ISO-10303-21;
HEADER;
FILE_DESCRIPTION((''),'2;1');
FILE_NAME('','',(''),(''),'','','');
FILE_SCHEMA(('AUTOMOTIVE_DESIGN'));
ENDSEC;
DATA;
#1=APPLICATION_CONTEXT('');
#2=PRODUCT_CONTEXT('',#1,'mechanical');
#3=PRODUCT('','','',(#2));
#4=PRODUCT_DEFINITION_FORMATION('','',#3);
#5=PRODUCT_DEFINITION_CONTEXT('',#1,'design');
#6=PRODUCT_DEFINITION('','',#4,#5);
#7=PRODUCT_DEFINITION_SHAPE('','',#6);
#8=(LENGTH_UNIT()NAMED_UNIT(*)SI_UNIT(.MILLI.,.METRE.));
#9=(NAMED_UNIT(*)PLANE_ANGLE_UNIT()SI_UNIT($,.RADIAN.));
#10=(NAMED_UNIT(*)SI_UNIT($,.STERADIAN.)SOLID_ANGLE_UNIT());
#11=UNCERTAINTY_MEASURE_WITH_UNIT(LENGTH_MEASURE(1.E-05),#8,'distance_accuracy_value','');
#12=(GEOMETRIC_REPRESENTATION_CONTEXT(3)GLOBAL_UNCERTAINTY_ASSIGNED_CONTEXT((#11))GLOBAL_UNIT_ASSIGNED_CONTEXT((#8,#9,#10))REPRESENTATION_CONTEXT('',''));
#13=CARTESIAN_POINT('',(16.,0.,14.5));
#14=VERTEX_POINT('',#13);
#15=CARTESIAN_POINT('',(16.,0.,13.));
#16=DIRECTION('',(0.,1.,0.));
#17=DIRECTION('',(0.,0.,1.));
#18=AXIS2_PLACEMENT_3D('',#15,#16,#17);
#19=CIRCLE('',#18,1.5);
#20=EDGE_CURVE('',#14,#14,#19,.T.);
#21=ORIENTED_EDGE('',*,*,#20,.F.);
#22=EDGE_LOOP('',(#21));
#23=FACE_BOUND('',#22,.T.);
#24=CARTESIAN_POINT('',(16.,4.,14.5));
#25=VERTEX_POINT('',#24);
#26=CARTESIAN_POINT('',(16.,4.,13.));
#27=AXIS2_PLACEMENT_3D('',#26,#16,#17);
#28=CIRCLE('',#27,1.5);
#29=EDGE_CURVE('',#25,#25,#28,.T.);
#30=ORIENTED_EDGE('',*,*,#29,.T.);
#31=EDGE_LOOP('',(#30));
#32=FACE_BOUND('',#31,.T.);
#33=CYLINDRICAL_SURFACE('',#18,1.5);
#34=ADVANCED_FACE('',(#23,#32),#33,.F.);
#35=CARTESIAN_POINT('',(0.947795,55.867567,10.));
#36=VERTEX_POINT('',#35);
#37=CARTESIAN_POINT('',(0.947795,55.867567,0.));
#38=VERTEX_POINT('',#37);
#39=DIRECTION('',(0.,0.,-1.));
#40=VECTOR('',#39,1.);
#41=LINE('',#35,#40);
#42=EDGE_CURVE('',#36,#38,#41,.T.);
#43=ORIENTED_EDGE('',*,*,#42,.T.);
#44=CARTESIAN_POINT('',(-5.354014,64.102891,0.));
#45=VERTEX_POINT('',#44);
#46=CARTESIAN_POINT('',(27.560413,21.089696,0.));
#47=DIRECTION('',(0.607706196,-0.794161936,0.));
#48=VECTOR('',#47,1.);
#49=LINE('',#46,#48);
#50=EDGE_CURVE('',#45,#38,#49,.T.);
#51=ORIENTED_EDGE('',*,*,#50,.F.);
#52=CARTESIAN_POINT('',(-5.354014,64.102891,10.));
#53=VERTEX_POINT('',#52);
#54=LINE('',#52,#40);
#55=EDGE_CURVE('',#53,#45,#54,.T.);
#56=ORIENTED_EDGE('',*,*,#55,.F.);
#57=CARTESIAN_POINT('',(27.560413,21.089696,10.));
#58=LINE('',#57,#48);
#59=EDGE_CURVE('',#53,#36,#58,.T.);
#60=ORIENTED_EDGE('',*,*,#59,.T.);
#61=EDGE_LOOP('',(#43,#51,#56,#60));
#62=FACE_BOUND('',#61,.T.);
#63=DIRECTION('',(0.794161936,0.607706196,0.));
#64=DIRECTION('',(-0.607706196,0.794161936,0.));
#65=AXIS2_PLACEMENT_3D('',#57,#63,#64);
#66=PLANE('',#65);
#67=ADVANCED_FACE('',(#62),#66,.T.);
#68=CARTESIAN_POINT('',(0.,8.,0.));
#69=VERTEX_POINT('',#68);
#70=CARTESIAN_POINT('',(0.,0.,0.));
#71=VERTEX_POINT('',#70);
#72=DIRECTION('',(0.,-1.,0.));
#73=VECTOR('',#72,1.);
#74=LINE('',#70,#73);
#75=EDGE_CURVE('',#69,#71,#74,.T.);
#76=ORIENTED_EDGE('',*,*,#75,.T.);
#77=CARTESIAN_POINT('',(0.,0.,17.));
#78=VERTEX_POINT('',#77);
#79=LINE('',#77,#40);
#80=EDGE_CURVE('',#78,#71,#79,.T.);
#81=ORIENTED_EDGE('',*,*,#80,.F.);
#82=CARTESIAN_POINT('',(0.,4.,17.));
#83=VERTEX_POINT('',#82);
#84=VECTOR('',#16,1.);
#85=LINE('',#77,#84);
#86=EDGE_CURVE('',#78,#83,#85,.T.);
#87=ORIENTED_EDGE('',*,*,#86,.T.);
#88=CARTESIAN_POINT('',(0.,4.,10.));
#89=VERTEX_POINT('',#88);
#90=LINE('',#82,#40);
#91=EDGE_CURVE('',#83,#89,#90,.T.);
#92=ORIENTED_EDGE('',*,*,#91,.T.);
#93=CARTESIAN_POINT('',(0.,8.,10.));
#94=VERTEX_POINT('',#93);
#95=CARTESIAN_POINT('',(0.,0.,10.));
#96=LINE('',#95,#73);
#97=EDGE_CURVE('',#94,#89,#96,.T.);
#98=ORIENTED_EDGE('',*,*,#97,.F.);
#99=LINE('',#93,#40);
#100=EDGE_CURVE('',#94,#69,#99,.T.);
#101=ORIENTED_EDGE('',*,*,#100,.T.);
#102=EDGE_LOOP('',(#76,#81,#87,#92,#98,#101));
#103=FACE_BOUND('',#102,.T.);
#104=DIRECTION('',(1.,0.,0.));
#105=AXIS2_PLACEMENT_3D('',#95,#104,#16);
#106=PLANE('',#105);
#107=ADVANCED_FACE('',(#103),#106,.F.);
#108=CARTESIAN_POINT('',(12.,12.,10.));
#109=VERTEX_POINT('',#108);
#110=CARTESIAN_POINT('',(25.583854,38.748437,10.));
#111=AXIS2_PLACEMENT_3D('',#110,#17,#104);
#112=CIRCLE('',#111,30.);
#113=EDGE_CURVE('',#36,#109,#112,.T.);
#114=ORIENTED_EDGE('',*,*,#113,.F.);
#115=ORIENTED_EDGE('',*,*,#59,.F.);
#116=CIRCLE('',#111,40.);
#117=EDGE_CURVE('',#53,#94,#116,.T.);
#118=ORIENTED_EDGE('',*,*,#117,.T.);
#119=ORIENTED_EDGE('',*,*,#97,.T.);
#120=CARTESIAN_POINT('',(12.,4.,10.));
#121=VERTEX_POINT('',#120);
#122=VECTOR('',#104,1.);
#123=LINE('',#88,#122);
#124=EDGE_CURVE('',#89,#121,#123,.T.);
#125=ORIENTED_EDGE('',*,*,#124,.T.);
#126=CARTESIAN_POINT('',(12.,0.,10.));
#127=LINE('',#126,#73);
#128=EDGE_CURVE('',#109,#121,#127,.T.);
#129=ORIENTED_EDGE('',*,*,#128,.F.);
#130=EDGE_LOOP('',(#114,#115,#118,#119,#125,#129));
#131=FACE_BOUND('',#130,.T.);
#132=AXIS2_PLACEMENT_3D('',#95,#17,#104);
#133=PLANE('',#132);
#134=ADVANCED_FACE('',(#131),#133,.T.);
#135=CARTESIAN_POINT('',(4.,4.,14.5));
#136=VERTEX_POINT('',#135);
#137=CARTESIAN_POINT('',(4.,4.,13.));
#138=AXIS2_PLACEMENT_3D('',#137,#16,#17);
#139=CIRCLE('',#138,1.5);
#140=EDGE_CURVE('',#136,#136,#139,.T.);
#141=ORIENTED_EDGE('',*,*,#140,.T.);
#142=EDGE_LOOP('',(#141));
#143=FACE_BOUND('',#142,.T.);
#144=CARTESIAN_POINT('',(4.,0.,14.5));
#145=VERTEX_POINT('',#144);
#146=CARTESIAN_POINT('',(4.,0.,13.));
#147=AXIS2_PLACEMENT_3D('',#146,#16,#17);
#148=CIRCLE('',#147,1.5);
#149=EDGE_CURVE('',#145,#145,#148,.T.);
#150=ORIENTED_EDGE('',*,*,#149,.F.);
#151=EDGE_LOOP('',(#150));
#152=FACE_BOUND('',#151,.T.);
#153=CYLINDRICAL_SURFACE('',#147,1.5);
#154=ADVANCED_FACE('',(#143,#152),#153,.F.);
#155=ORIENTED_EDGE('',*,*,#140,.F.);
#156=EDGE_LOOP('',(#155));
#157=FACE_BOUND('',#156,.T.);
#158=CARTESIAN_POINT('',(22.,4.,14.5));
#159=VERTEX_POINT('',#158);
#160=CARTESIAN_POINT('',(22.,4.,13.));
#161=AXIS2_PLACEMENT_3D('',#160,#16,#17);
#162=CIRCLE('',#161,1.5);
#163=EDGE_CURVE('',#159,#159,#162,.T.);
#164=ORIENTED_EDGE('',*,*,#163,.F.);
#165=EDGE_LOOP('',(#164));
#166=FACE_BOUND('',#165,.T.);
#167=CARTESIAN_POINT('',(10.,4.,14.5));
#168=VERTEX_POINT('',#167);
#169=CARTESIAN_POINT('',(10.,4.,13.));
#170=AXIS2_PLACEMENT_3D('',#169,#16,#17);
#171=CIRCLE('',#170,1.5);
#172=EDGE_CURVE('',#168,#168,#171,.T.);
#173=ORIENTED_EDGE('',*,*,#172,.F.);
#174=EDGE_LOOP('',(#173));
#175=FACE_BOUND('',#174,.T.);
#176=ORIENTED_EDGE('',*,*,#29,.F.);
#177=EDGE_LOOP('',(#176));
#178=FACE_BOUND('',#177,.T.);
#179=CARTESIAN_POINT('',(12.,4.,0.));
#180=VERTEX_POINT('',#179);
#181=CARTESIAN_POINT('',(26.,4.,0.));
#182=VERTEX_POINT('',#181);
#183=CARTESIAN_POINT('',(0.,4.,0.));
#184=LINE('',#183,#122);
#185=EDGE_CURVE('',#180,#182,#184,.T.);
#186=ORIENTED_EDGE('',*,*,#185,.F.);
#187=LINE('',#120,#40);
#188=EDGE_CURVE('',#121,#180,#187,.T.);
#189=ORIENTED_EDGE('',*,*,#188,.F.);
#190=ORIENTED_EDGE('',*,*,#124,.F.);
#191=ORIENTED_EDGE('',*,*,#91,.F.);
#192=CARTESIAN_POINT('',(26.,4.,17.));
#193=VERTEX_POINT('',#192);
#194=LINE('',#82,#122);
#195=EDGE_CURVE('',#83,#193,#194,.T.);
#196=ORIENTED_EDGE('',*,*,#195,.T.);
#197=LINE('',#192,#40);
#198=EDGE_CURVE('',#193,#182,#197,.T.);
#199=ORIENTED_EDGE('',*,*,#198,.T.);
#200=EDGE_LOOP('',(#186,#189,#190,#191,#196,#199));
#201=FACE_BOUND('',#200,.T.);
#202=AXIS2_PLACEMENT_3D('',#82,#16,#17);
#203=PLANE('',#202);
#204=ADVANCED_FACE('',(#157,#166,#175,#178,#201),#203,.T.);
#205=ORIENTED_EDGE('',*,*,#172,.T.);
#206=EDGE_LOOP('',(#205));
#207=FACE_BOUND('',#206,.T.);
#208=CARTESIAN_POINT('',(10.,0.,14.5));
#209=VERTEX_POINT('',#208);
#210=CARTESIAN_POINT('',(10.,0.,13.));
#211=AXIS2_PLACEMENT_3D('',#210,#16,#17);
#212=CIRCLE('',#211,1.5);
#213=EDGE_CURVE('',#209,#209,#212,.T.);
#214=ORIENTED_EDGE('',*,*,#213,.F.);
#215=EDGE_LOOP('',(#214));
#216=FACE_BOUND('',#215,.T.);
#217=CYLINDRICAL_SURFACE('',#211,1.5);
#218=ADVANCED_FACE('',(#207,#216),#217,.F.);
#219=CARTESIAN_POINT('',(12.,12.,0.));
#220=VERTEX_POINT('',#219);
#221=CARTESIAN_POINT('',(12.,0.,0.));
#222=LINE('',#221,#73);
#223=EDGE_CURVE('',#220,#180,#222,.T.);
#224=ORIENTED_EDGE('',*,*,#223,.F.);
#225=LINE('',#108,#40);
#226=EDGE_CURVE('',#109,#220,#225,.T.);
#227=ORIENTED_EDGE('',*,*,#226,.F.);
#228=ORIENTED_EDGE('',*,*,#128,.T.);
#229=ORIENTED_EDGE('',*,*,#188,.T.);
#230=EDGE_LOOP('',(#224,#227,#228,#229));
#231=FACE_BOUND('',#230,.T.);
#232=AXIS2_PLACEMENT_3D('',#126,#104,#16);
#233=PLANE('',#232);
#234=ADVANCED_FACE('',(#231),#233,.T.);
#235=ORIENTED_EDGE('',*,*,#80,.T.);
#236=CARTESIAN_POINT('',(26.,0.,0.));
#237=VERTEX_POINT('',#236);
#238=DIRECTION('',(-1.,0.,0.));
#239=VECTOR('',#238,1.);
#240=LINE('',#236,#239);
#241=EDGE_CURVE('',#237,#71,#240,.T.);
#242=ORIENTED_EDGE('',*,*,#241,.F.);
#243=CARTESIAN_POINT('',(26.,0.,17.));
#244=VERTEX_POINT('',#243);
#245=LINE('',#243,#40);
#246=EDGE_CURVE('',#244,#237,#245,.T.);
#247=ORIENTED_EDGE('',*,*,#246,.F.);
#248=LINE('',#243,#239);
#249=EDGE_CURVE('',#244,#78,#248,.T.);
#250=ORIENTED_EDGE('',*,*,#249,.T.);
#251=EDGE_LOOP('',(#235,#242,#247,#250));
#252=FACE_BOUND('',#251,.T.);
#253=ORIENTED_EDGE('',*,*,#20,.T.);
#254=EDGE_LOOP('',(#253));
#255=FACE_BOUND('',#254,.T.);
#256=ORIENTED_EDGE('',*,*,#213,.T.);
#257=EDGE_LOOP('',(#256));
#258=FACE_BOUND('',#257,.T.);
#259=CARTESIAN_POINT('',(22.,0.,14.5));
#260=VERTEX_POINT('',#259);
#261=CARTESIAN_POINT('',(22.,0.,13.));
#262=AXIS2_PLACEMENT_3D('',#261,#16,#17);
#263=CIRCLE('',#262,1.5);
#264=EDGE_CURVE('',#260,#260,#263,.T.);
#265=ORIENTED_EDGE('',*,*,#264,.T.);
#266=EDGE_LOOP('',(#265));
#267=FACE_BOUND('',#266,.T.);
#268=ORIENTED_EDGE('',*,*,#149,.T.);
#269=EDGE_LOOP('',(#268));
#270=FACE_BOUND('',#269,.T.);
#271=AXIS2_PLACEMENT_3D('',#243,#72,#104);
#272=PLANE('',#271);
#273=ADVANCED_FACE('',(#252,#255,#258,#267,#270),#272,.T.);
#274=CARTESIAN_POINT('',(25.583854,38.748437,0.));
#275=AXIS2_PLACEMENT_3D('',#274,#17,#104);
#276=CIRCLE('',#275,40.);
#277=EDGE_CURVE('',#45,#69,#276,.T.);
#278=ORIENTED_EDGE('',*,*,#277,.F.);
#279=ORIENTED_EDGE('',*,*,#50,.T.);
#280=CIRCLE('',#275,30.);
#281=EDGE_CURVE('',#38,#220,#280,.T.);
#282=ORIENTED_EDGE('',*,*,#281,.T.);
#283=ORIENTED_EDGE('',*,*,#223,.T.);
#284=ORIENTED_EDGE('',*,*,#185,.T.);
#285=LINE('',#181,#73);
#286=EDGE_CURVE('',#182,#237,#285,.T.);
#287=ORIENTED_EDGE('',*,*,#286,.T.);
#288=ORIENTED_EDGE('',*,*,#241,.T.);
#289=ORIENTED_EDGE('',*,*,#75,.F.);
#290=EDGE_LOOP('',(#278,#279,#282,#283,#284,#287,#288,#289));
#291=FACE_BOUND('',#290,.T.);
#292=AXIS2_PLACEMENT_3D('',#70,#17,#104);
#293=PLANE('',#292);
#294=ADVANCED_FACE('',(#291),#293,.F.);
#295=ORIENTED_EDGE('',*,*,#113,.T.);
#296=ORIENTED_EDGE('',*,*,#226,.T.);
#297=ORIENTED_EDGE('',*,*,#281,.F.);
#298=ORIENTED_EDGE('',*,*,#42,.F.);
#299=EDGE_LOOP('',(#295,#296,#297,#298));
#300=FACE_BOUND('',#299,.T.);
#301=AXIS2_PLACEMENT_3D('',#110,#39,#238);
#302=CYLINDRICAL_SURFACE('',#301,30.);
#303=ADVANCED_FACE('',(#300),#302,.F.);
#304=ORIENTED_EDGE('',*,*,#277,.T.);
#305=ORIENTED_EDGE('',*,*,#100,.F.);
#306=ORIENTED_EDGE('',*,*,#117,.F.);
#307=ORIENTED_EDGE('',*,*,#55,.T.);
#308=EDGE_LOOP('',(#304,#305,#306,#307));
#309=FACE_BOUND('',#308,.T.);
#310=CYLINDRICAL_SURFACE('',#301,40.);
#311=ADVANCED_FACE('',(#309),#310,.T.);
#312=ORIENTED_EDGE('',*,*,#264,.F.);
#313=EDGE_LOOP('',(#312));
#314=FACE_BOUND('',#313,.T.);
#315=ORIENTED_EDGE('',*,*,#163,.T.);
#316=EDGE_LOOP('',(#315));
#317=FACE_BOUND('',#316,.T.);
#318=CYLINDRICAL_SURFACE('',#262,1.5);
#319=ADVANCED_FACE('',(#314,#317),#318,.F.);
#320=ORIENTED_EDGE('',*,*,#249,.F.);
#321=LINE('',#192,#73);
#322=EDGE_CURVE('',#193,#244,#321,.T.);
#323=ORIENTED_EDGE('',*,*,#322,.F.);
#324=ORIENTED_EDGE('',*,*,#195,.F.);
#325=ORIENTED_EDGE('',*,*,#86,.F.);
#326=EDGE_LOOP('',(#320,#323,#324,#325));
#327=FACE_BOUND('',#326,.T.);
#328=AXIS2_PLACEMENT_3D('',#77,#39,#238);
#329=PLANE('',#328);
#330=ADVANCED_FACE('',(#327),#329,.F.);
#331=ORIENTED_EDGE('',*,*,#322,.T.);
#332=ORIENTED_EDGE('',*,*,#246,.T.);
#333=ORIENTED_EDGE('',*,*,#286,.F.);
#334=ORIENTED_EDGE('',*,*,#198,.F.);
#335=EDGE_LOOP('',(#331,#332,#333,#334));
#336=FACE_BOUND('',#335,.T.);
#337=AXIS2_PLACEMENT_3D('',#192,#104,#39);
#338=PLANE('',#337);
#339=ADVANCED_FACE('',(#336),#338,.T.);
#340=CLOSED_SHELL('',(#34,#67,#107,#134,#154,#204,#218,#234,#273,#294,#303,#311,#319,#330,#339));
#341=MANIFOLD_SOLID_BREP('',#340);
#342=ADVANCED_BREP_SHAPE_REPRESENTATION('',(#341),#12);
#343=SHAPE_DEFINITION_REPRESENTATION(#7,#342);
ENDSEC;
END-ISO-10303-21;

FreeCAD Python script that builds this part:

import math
import FreeCAD as App
import Part
import Sketcher
Q = App.Units.Quantity


def add_polygon(sketch, points):
    """Adds a closed chain of lines whose ends are joined by coincident constraints."""
    first, n = sketch.GeometryCount, len(points)
    for a, b in zip(points, points[1:] + points[:1]):
        sketch.addGeometry(Part.LineSegment(App.Vector(*a, 0), App.Vector(*b, 0)), False)
    for i in range(n):
        sketch.addConstraint(Sketcher.Constraint("Coincident", first + i, 2, first + (i + 1) % n, 1))

doc = App.newDocument("Part")
body = doc.addObject("PartDesign::Body", "Body")

# Sketch on XY plane
sketch1 = body.newObject("Sketcher::SketchObject", "Sketch")
sketch1.AttachmentSupport = (doc.getObject("XY_Plane"), [""])
sketch1.MapMode = "FlatFace"
sketch1.addGeometry(Part.LineSegment(App.Vector(0.947795, 55.867567, 0), App.Vector(-5.354014, 64.102891, 0)), False)
sketch1.addGeometry(Part.ArcOfCircle(Part.Circle(App.Vector(25.583854, 38.748437, 0), App.Vector(0, 0, 1), 40), math.radians(140.664417), math.radians(230.238273)), False)
sketch1.addGeometry(Part.LineSegment(App.Vector(0, 8, 0), App.Vector(0, 4, 0)), False)
sketch1.addGeometry(Part.LineSegment(App.Vector(0, 4, 0), App.Vector(12, 4, 0)), False)
sketch1.addGeometry(Part.LineSegment(App.Vector(12, 4, 0), App.Vector(12, 12, 0)), False)
sketch1.addGeometry(Part.ArcOfCircle(Part.Circle(App.Vector(25.583854, 38.748437, 0), App.Vector(0, 0, 1), 30), math.radians(145.205296), math.radians(243.076841)), False)
sketch1.addConstraint(Sketcher.Constraint("Coincident", 0, 2, 1, 1))
sketch1.addConstraint(Sketcher.Constraint("Coincident", 1, 2, 2, 1))
sketch1.addConstraint(Sketcher.Constraint("Coincident", 2, 2, 3, 1))
sketch1.addConstraint(Sketcher.Constraint("Coincident", 3, 2, 4, 1))
sketch1.addConstraint(Sketcher.Constraint("Coincident", 4, 2, 5, 2))
sketch1.addConstraint(Sketcher.Constraint("Coincident", 5, 1, 0, 1))
sketch1.addConstraint(Sketcher.Constraint("Vertical", 2))
sketch1.addConstraint(Sketcher.Constraint("Horizontal", 3))
sketch1.addConstraint(Sketcher.Constraint("Vertical", 4))
sketch1.addConstraint(Sketcher.Constraint("Coincident", 5, 3, 1, 3))
sketch1.addConstraint(Sketcher.Constraint("PointOnObject", 1, 2, -2))
sketch1.addConstraint(Sketcher.Constraint("Radius", 1, Q("40 mm")))
sketch1.addConstraint(Sketcher.Constraint("Radius", 5, Q("30 mm")))
sketch1.addConstraint(Sketcher.Constraint("DistanceX", 3, 1, 3, 2, Q("12 mm")))
sketch1.addConstraint(Sketcher.Constraint("DistanceY", 2, 2, 2, 1, Q("4 mm")))
sketch1.addConstraint(Sketcher.Constraint("DistanceY", 4, 1, 4, 2, Q("8 mm")))
sketch1.addConstraint(Sketcher.Constraint("DistanceY", -1, 1, 1, 2, Q("8 mm")))
sketch1.addConstraint(Sketcher.Constraint("Distance", 0, Q("10.369829 mm")))
sketch1.addConstraint(Sketcher.Constraint("DistanceY", -1, 1, 0, 2, Q("64.102891 mm")))
pad1 = body.newObject("PartDesign::Pad", "Pad")
pad1.Profile = sketch1
pad1.Length = 10

# Sketch on XY plane
sketch2 = body.newObject("Sketcher::SketchObject", "Sketch001")
sketch2.AttachmentSupport = (doc.getObject("XY_Plane"), [""])
sketch2.MapMode = "FlatFace"
add_polygon(sketch2, [(0, 4), (0, 0), (26, 0), (26, 4)])  # lines 0-3
sketch2.addConstraint(Sketcher.Constraint("Vertical", 0))
sketch2.addConstraint(Sketcher.Constraint("Horizontal", 1))
sketch2.addConstraint(Sketcher.Constraint("Vertical", 2))
sketch2.addConstraint(Sketcher.Constraint("Horizontal", 3))
sketch2.addConstraint(Sketcher.Constraint("Coincident", 0, 2, -1, 1))
sketch2.addConstraint(Sketcher.Constraint("DistanceX", 1, 1, 1, 2, Q("26 mm")))
sketch2.addConstraint(Sketcher.Constraint("DistanceY", 0, 2, 0, 1, Q("4 mm")))
pad2 = body.newObject("PartDesign::Pad", "Pad001")
pad2.Profile = sketch2
pad2.Length = 17

# Sketch on XZ plane
sketch3 = body.newObject("Sketcher::SketchObject", "Sketch002")
sketch3.AttachmentSupport = (doc.getObject("XZ_Plane"), [""])
sketch3.MapMode = "FlatFace"
sketch3.AttachmentOffset = App.Placement(App.Vector(0, 0, -4), App.Rotation())
sketch3.addGeometry(Part.Circle(App.Vector(4, 13, 0), App.Vector(0, 0, 1), 1.5), False)
sketch3.addGeometry(Part.Circle(App.Vector(10, 13, 0), App.Vector(0, 0, 1), 1.5), False)
sketch3.addGeometry(Part.Circle(App.Vector(16, 13, 0), App.Vector(0, 0, 1), 1.5), False)
sketch3.addGeometry(Part.Circle(App.Vector(22, 13, 0), App.Vector(0, 0, 1), 1.5), False)
sketch3.addConstraint(Sketcher.Constraint("Equal", 0, 1))
sketch3.addConstraint(Sketcher.Constraint("Equal", 1, 2))
sketch3.addConstraint(Sketcher.Constraint("Equal", 2, 3))
sketch3.addConstraint(Sketcher.Constraint("Horizontal", 0, 3, 1, 3))
sketch3.addConstraint(Sketcher.Constraint("Horizontal", 1, 3, 2, 3))
sketch3.addConstraint(Sketcher.Constraint("Horizontal", 2, 3, 3, 3))
sketch3.addConstraint(Sketcher.Constraint("Diameter", 0, Q("3 mm")))
sketch3.addConstraint(Sketcher.Constraint("DistanceX", -1, 1, 0, 3, Q("4 mm")))
sketch3.addConstraint(Sketcher.Constraint("DistanceY", -1, 1, 0, 3, Q("13 mm")))
sketch3.addConstraint(Sketcher.Constraint("DistanceX", -1, 1, 1, 3, Q("10 mm")))
sketch3.addConstraint(Sketcher.Constraint("DistanceX", -1, 1, 2, 3, Q("16 mm")))
sketch3.addConstraint(Sketcher.Constraint("DistanceX", -1, 1, 3, 3, Q("22 mm")))
pocket1 = body.newObject("PartDesign::Pocket", "Pocket")
pocket1.Profile = sketch3
pocket1.Length = 4
pocket1.Reversed = True

doc.recompute()
